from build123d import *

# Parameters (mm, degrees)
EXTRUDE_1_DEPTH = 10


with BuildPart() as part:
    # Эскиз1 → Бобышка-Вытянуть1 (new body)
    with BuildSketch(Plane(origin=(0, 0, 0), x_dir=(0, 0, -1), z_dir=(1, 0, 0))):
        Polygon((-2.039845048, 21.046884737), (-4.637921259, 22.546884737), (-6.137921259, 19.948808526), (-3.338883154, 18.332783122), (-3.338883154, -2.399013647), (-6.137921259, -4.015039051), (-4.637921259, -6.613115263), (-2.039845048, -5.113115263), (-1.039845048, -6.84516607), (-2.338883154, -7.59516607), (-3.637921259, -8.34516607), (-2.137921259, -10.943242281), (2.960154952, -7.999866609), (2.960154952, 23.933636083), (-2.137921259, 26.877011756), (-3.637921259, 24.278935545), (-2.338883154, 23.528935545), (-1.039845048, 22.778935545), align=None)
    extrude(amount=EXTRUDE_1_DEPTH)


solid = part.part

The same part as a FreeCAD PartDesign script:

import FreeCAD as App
import Part
import Sketcher
Q = App.Units.Quantity


def add_polygon(sketch, points):
    """Adds a closed chain of lines whose ends are joined by coincident constraints."""
    first, n = sketch.GeometryCount, len(points)
    for a, b in zip(points, points[1:] + points[:1]):
        sketch.addGeometry(Part.LineSegment(App.Vector(*a, 0), App.Vector(*b, 0)), False)
    for i in range(n):
        sketch.addConstraint(Sketcher.Constraint("Coincident", first + i, 2, first + (i + 1) % n, 1))

doc = App.newDocument("Part")
body = doc.addObject("PartDesign::Body", "Body")

# Sketch on YZ plane
sketch1 = body.newObject("Sketcher::SketchObject", "Sketch")
sketch1.AttachmentSupport = (doc.getObject("YZ_Plane"), [""])
sketch1.MapMode = "FlatFace"
add_polygon(sketch1, [(21.046885, 2.039845), (22.546885, 4.637921), (19.948809, 6.137921), (18.332783, 3.338883), (-2.399014, 3.338883), (-4.015039, 6.137921), (-6.613115, 4.637921), (-5.113115, 2.039845), (-6.845166, 1.039845), (-7.595166, 2.338883), (-8.345166, 3.637921), (-10.943242, 2.137921), (-7.999867, -2.960155), (23.933636, -2.960155), (26.877012, 2.137921), (24.278936, 3.637921), (23.528936, 2.338883), (22.778936, 1.039845)])  # lines 0-17
sketch1.addConstraint([
    Sketcher.Constraint("Horizontal", 3),
    Sketcher.Constraint("Horizontal", 12),
    Sketcher.Constraint("Perpendicular", 0, 1),
    Sketcher.Constraint("Perpendicular", 1, 2),
    Sketcher.Constraint("Perpendicular", 4, 5),
    Sketcher.Constraint("Perpendicular", 5, 6),
    Sketcher.Constraint("Perpendicular", 6, 7),
    Sketcher.Constraint("Perpendicular", 7, 8),
    Sketcher.Constraint("Parallel", 8, 9),
    Sketcher.Constraint("Perpendicular", 9, 10),
    Sketcher.Constraint("Perpendicular", 10, 11),
    Sketcher.Constraint("Parallel", 2, 13),
    Sketcher.Constraint("Perpendicular", 13, 14),
    Sketcher.Constraint("Perpendicular", 14, 15),
    Sketcher.Constraint("Parallel", 15, 16),
    Sketcher.Constraint("Perpendicular", 16, 17),
    Sketcher.Constraint("Horizontal", 1, 2, 4, 2),
    Sketcher.Constraint("Horizontal", 0, 2, 5, 2),
    Sketcher.Constraint("Horizontal", 10, 2, 13, 2),
    Sketcher.Constraint("Horizontal", 9, 2, 14, 2),
    Sketcher.Constraint("Horizontal", 8, 2, 15, 2),
    Sketcher.Constraint("Horizontal", 7, 2, 16, 2),
    Sketcher.Constraint("Horizontal", 6, 2, 17, 2),
    Sketcher.Constraint("Equal", 0, 1),
    Sketcher.Constraint("Equal", 2, 4),
    Sketcher.Constraint("Equal", 8, 9),
    Sketcher.Constraint("Equal", 6, 10),
    Sketcher.Constraint("Angle", 0, Q("60 deg")),
    Sketcher.Constraint("Distance", 0, 3.0),
    Sketcher.Constraint("Distance", 7, 2.0),
    Sketcher.Constraint("DistanceY", 8, 2, 3, 2, 1.0),
    Sketcher.Constraint("DistanceY", 9, 2, 5, 2, 1.0),
    Sketcher.Constraint("DistanceY", 11, 2, 7, 2, 4.0),
    Sketcher.Constraint("DistanceX", 5, 2, 0, 2, 29.16),
    Sketcher.Constraint("DistanceY", -1, 1, 0, 2, 4.637921),
    Sketcher.Constraint("DistanceX", -1, 1, 1, 2, 19.948809),
])
pad1 = body.newObject("PartDesign::Pad", "Pad")
pad1.Profile = sketch1
pad1.Length = 10

doc.recompute()
